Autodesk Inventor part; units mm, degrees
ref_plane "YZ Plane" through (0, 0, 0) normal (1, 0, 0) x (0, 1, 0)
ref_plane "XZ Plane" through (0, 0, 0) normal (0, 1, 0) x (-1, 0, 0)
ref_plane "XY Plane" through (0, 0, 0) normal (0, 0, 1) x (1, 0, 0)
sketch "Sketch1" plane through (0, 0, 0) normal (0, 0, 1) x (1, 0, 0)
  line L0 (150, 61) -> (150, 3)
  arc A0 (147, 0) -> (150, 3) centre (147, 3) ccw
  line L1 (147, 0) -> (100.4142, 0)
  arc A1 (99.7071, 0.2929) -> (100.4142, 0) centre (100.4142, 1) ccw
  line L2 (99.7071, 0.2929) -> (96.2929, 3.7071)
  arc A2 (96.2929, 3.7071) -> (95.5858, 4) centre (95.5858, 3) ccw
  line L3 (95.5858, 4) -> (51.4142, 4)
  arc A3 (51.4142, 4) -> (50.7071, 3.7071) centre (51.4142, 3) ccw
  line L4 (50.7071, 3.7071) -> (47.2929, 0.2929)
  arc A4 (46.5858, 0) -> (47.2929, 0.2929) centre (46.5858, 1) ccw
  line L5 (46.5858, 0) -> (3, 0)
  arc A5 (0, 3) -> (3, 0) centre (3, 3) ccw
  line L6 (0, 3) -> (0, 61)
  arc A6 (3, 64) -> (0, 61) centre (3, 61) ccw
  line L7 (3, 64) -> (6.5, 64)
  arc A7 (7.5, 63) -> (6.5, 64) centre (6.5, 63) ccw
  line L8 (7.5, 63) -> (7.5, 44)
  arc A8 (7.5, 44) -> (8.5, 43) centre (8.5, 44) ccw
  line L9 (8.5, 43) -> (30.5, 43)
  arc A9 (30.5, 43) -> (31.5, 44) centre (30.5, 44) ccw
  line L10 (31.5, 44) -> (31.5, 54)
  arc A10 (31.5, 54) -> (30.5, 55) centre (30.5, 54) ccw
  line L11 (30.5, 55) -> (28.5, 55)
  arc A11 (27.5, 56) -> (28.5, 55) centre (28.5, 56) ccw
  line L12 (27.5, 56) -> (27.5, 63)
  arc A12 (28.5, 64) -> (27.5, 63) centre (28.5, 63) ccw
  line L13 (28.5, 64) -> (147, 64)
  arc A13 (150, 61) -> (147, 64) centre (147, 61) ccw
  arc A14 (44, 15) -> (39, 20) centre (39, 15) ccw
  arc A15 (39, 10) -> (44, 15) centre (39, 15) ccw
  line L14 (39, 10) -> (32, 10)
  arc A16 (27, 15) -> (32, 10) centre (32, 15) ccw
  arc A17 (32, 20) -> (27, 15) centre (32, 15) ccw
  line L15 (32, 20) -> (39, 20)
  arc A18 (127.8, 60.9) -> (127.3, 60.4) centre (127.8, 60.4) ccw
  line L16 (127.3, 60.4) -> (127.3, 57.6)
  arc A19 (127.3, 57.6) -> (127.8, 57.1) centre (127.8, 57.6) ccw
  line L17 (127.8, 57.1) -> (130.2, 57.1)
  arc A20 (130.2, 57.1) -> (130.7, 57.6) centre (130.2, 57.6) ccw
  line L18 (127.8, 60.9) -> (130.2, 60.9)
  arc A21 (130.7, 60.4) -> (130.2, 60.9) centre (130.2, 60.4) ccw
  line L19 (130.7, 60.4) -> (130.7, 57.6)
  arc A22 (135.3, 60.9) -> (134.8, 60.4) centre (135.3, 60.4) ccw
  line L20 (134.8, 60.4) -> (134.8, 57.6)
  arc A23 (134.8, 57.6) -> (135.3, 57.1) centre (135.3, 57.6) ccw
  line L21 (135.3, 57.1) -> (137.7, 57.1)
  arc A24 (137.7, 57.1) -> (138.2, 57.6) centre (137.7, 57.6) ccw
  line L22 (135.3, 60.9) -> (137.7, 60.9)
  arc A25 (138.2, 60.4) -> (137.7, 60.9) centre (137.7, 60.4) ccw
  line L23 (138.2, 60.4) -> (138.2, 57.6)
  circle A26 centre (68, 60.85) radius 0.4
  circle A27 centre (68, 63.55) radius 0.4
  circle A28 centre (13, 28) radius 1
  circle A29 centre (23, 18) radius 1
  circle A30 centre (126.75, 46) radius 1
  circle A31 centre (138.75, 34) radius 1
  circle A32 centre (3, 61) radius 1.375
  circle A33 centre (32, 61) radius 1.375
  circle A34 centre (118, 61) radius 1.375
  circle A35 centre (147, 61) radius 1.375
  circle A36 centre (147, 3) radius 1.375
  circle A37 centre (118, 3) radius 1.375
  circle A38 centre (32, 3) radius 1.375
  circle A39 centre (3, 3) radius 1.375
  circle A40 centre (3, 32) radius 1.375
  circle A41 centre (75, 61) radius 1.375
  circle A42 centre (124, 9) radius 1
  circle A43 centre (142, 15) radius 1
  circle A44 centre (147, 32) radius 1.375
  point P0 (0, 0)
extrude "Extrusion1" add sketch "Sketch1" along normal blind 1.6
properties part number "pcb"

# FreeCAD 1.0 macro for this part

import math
import FreeCAD as App
import Part
import Sketcher
Q = App.Units.Quantity

doc = App.newDocument("Part")
body = doc.addObject("PartDesign::Body", "Body")

# Sketch on XY plane
sketch1 = body.newObject("Sketcher::SketchObject", "Sketch")
sketch1.AttachmentSupport = (doc.getObject("XY_Plane"), [""])
sketch1.MapMode = "FlatFace"
sketch1.addGeometry(Part.LineSegment(App.Vector(150, 3, 0), App.Vector(150, 61, 0)), False)
sketch1.addGeometry(Part.ArcOfCircle(Part.Circle(App.Vector(147, 61, 0), App.Vector(0, 0, 1), 3), math.radians(0), math.radians(90)), False)
sketch1.addGeometry(Part.LineSegment(App.Vector(147, 64, 0), App.Vector(28.5, 64, 0)), False)
sketch1.addGeometry(Part.ArcOfCircle(Part.Circle(App.Vector(28.5, 63, 0), App.Vector(0, 0, 1), 1), math.radians(90), math.radians(180)), False)
sketch1.addGeometry(Part.LineSegment(App.Vector(27.5, 63, 0), App.Vector(27.5, 56, 0)), False)
sketch1.addGeometry(Part.ArcOfCircle(Part.Circle(App.Vector(28.5, 56, 0), App.Vector(0, 0, 1), 1), math.radians(180), math.radians(270)), False)
sketch1.addGeometry(Part.LineSegment(App.Vector(28.5, 55, 0), App.Vector(30.5, 55, 0)), False)
sketch1.addGeometry(Part.ArcOfCircle(Part.Circle(App.Vector(30.5, 54, 0), App.Vector(0, 0, 1), 1), math.radians(0), math.radians(90)), False)
sketch1.addGeometry(Part.LineSegment(App.Vector(31.5, 54, 0), App.Vector(31.5, 44, 0)), False)
sketch1.addGeometry(Part.ArcOfCircle(Part.Circle(App.Vector(30.5, 44, 0), App.Vector(0, 0, 1), 1), math.radians(-90), math.radians(0)), False)
sketch1.addGeometry(Part.LineSegment(App.Vector(30.5, 43, 0), App.Vector(8.5, 43, 0)), False)
sketch1.addGeometry(Part.ArcOfCircle(Part.Circle(App.Vector(8.5, 44, 0), App.Vector(0, 0, 1), 1), math.radians(180), math.radians(270)), False)
sketch1.addGeometry(Part.LineSegment(App.Vector(7.5, 44, 0), App.Vector(7.5, 63, 0)), False)
sketch1.addGeometry(Part.ArcOfCircle(Part.Circle(App.Vector(6.5, 63, 0), App.Vector(0, 0, 1), 1), math.radians(0), math.radians(90)), False)
sketch1.addGeometry(Part.LineSegment(App.Vector(6.5, 64, 0), App.Vector(3, 64, 0)), False)
sketch1.addGeometry(Part.ArcOfCircle(Part.Circle(App.Vector(3, 61, 0), App.Vector(0, 0, 1), 3), math.radians(90), math.radians(180)), False)
sketch1.addGeometry(Part.LineSegment(App.Vector(0, 61, 0), App.Vector(0, 3, 0)), False)
sketch1.addGeometry(Part.ArcOfCircle(Part.Circle(App.Vector(3, 3, 0), App.Vector(0, 0, 1), 3), math.radians(180), math.radians(270)), False)
sketch1.addGeometry(Part.LineSegment(App.Vector(3, 0, 0), App.Vector(46.59, 0, 0)), False)
sketch1.addGeometry(Part.ArcOfCircle(Part.Circle(App.Vector(46.59, 1, 0), App.Vector(0, 0, 1), 1), math.radians(-90), math.radians(-45)), False)
sketch1.addGeometry(Part.LineSegment(App.Vector(47.29, 0.29, 0), App.Vector(50.71, 3.71, 0)), False)
sketch1.addGeometry(Part.ArcOfCircle(Part.Circle(App.Vector(51.41, 3, 0), App.Vector(0, 0, 1), 1), math.radians(90), math.radians(135)), False)
sketch1.addGeometry(Part.LineSegment(App.Vector(51.41, 4, 0), App.Vector(95.59, 4, 0)), False)
sketch1.addGeometry(Part.ArcOfCircle(Part.Circle(App.Vector(95.59, 3, 0), App.Vector(0, 0, 1), 1), math.radians(45), math.radians(90)), False)
sketch1.addGeometry(Part.LineSegment(App.Vector(96.29, 3.71, 0), App.Vector(99.71, 0.29, 0)), False)
sketch1.addGeometry(Part.ArcOfCircle(Part.Circle(App.Vector(100.41, 1, 0), App.Vector(0, 0, 1), 1), math.radians(-135), math.radians(-90)), False)
sketch1.addGeometry(Part.LineSegment(App.Vector(100.41, 0, 0), App.Vector(147, 0, 0)), False)
sketch1.addGeometry(Part.ArcOfCircle(Part.Circle(App.Vector(147, 3, 0), App.Vector(0, 0, 1), 3), math.radians(-90), math.radians(0)), False)
sketch1.addGeometry(Part.Circle(App.Vector(3, 3, 0), App.Vector(0, 0, 1), 1.38), False)
sketch1.addGeometry(Part.Circle(App.Vector(32, 3, 0), App.Vector(0, 0, 1), 1.38), False)
sketch1.addGeometry(Part.ArcOfCircle(Part.Circle(App.Vector(39, 15, 0), App.Vector(0, 0, 1), 5), math.radians(-90), math.radians(90)), False)
sketch1.addGeometry(Part.LineSegment(App.Vector(39, 10, 0), App.Vector(32, 10, 0)), False)
sketch1.addGeometry(Part.ArcOfCircle(Part.Circle(App.Vector(32, 15, 0), App.Vector(0, 0, 1), 5), math.radians(90), math.radians(270)), False)
sketch1.addGeometry(Part.LineSegment(App.Vector(32, 20, 0), App.Vector(39, 20, 0)), False)
sketch1.addGeometry(Part.Circle(App.Vector(23, 18, 0), App.Vector(0, 0, 1), 1), False)
sketch1.addGeometry(Part.Circle(App.Vector(13, 28, 0), App.Vector(0, 0, 1), 1), False)
sketch1.addGeometry(Part.Circle(App.Vector(118, 3, 0), App.Vector(0, 0, 1), 1.38), False)
sketch1.addGeometry(Part.Circle(App.Vector(147, 3, 0), App.Vector(0, 0, 1), 1.38), False)
sketch1.addGeometry(Part.Circle(App.Vector(124, 9, 0), App.Vector(0, 0, 1), 1), False)
sketch1.addGeometry(Part.Circle(App.Vector(142, 15, 0), App.Vector(0, 0, 1), 1), False)
sketch1.addGeometry(Part.Circle(App.Vector(3, 32, 0), App.Vector(0, 0, 1), 1.38), False)
sketch1.addGeometry(Part.Circle(App.Vector(3, 61, 0), App.Vector(0, 0, 1), 1.38), False)
sketch1.addGeometry(Part.Circle(App.Vector(32, 61, 0), App.Vector(0, 0, 1), 1.38), False)
sketch1.addGeometry(Part.Circle(App.Vector(68, 60.85, 0), App.Vector(0, 0, 1), 0.4), False)
sketch1.addGeometry(Part.Circle(App.Vector(68, 63.55, 0), App.Vector(0, 0, 1), 0.4), False)
sketch1.addGeometry(Part.Circle(App.Vector(138.75, 34, 0), App.Vector(0, 0, 1), 1), False)
sketch1.addGeometry(Part.Circle(App.Vector(147, 32, 0), App.Vector(0, 0, 1), 1.38), False)
sketch1.addGeometry(Part.Circle(App.Vector(126.75, 46, 0), App.Vector(0, 0, 1), 1), False)
sketch1.addGeometry(Part.Circle(App.Vector(75, 61, 0), App.Vector(0, 0, 1), 1.38), False)
sketch1.addGeometry(Part.ArcOfCircle(Part.Circle(App.Vector(127.8, 60.4, 0), App.Vector(0, 0, 1), 0.5), math.radians(90), math.radians(180)), False)
sketch1.addGeometry(Part.LineSegment(App.Vector(127.8, 60.9, 0), App.Vector(130.2, 60.9, 0)), False)
sketch1.addGeometry(Part.ArcOfCircle(Part.Circle(App.Vector(130.2, 60.4, 0), App.Vector(0, 0, 1), 0.5), math.radians(0), math.radians(90)), False)
sketch1.addGeometry(Part.LineSegment(App.Vector(130.7, 60.4, 0), App.Vector(130.7, 57.6, 0)), False)
sketch1.addGeometry(Part.ArcOfCircle(Part.Circle(App.Vector(130.2, 57.6, 0), App.Vector(0, 0, 1), 0.5), math.radians(-90), math.radians(0)), False)
sketch1.addGeometry(Part.LineSegment(App.Vector(130.2, 57.1, 0), App.Vector(127.8, 57.1, 0)), False)
sketch1.addGeometry(Part.ArcOfCircle(Part.Circle(App.Vector(127.8, 57.6, 0), App.Vector(0, 0, 1), 0.5), math.radians(180), math.radians(270)), False)
sketch1.addGeometry(Part.LineSegment(App.Vector(127.3, 57.6, 0), App.Vector(127.3, 60.4, 0)), False)
sketch1.addGeometry(Part.Circle(App.Vector(118, 61, 0), App.Vector(0, 0, 1), 1.38), False)
sketch1.addGeometry(Part.ArcOfCircle(Part.Circle(App.Vector(135.3, 60.4, 0), App.Vector(0, 0, 1), 0.5), math.radians(90), math.radians(180)), False)
sketch1.addGeometry(Part.LineSegment(App.Vector(135.3, 60.9, 0), App.Vector(137.7, 60.9, 0)), False)
sketch1.addGeometry(Part.ArcOfCircle(Part.Circle(App.Vector(137.7, 60.4, 0), App.Vector(0, 0, 1), 0.5), math.radians(0), math.radians(90)), False)
sketch1.addGeometry(Part.LineSegment(App.Vector(138.2, 60.4, 0), App.Vector(138.2, 57.6, 0)), False)
sketch1.addGeometry(Part.ArcOfCircle(Part.Circle(App.Vector(137.7, 57.6, 0), App.Vector(0, 0, 1), 0.5), math.radians(-90), math.radians(0)), False)
sketch1.addGeometry(Part.LineSegment(App.Vector(137.7, 57.1, 0), App.Vector(135.3, 57.1, 0)), False)
sketch1.addGeometry(Part.ArcOfCircle(Part.Circle(App.Vector(135.3, 57.6, 0), App.Vector(0, 0, 1), 0.5), math.radians(180), math.radians(270)), False)
sketch1.addGeometry(Part.LineSegment(App.Vector(134.8, 57.6, 0), App.Vector(134.8, 60.4, 0)), False)
sketch1.addGeometry(Part.Circle(App.Vector(147, 61, 0), App.Vector(0, 0, 1), 1.38), False)
sketch1.addConstraint(Sketcher.Constraint("Tangent", 0, 2, 1, 1))
sketch1.addConstraint(Sketcher.Constraint("Tangent", 1, 2, 2, 1))
sketch1.addConstraint(Sketcher.Constraint("Tangent", 2, 2, 3, 1))
sketch1.addConstraint(Sketcher.Constraint("Tangent", 3, 2, 4, 1))
sketch1.addConstraint(Sketcher.Constraint("Tangent", 4, 2, 5, 1))
sketch1.addConstraint(Sketcher.Constraint("Tangent", 5, 2, 6, 1))
sketch1.addConstraint(Sketcher.Constraint("Tangent", 6, 2, 7, 2))
sketch1.addConstraint(Sketcher.Constraint("Tangent", 7, 1, 8, 1))
sketch1.addConstraint(Sketcher.Constraint("Tangent", 8, 2, 9, 2))
sketch1.addConstraint(Sketcher.Constraint("Tangent", 9, 1, 10, 1))
sketch1.addConstraint(Sketcher.Constraint("Tangent", 10, 2, 11, 2))
sketch1.addConstraint(Sketcher.Constraint("Tangent", 11, 1, 12, 1))
sketch1.addConstraint(Sketcher.Constraint("Tangent", 12, 2, 13, 1))
sketch1.addConstraint(Sketcher.Constraint("Tangent", 13, 2, 14, 1))
sketch1.addConstraint(Sketcher.Constraint("Tangent", 14, 2, 15, 1))
sketch1.addConstraint(Sketcher.Constraint("Tangent", 15, 2, 16, 1))
sketch1.addConstraint(Sketcher.Constraint("Tangent", 16, 2, 17, 1))
sketch1.addConstraint(Sketcher.Constraint("Tangent", 17, 2, 18, 1))
sketch1.addConstraint(Sketcher.Constraint("Tangent", 18, 2, 19, 1))
sketch1.addConstraint(Sketcher.Constraint("Tangent", 19, 2, 20, 1))
sketch1.addConstraint(Sketcher.Constraint("Tangent", 20, 2, 21, 2))
sketch1.addConstraint(Sketcher.Constraint("Tangent", 21, 1, 22, 1))
sketch1.addConstraint(Sketcher.Constraint("Tangent", 22, 2, 23, 2))
sketch1.addConstraint(Sketcher.Constraint("Tangent", 23, 1, 24, 1))
sketch1.addConstraint(Sketcher.Constraint("Tangent", 24, 2, 25, 1))
sketch1.addConstraint(Sketcher.Constraint("Tangent", 25, 2, 26, 1))
sketch1.addConstraint(Sketcher.Constraint("Tangent", 26, 2, 27, 1))
sketch1.addConstraint(Sketcher.Constraint("Tangent", 27, 2, 0, 1))
sketch1.addConstraint(Sketcher.Constraint("Tangent", 30, 1, 31, 1))
sketch1.addConstraint(Sketcher.Constraint("Tangent", 31, 2, 32, 2))
sketch1.addConstraint(Sketcher.Constraint("Tangent", 32, 1, 33, 1))
sketch1.addConstraint(Sketcher.Constraint("Tangent", 33, 2, 30, 2))
sketch1.addConstraint(Sketcher.Constraint("Tangent", 49, 1, 50, 1))
sketch1.addConstraint(Sketcher.Constraint("Tangent", 50, 2, 51, 2))
sketch1.addConstraint(Sketcher.Constraint("Tangent", 51, 1, 52, 1))
sketch1.addConstraint(Sketcher.Constraint("Tangent", 52, 2, 53, 2))
sketch1.addConstraint(Sketcher.Constraint("Tangent", 53, 1, 54, 1))
sketch1.addConstraint(Sketcher.Constraint("Tangent", 54, 2, 55, 2))
sketch1.addConstraint(Sketcher.Constraint("Tangent", 55, 1, 56, 1))
sketch1.addConstraint(Sketcher.Constraint("Tangent", 56, 2, 49, 2))
sketch1.addConstraint(Sketcher.Constraint("Tangent", 58, 1, 59, 1))
sketch1.addConstraint(Sketcher.Constraint("Tangent", 59, 2, 60, 2))
sketch1.addConstraint(Sketcher.Constraint("Tangent", 60, 1, 61, 1))
sketch1.addConstraint(Sketcher.Constraint("Tangent", 61, 2, 62, 2))
sketch1.addConstraint(Sketcher.Constraint("Tangent", 62, 1, 63, 1))
sketch1.addConstraint(Sketcher.Constraint("Tangent", 63, 2, 64, 2))
sketch1.addConstraint(Sketcher.Constraint("Tangent", 64, 1, 65, 1))
sketch1.addConstraint(Sketcher.Constraint("Tangent", 65, 2, 58, 2))
sketch1.addConstraint(Sketcher.Constraint("Vertical", 0))
sketch1.addConstraint(Sketcher.Constraint("Horizontal", 2))
sketch1.addConstraint(Sketcher.Constraint("Vertical", 4))
sketch1.addConstraint(Sketcher.Constraint("Horizontal", 6))
sketch1.addConstraint(Sketcher.Constraint("Vertical", 8))
sketch1.addConstraint(Sketcher.Constraint("Horizontal", 10))
sketch1.addConstraint(Sketcher.Constraint("Vertical", 12))
sketch1.addConstraint(Sketcher.Constraint("Horizontal", 14))
sketch1.addConstraint(Sketcher.Constraint("Vertical", 16))
sketch1.addConstraint(Sketcher.Constraint("Horizontal", 18))
sketch1.addConstraint(Sketcher.Constraint("Horizontal", 22))
sketch1.addConstraint(Sketcher.Constraint("Horizontal", 26))
sketch1.addConstraint(Sketcher.Constraint("Horizontal", 31))
sketch1.addConstraint(Sketcher.Constraint("Horizontal", 33))
sketch1.addConstraint(Sketcher.Constraint("Horizontal", 50))
sketch1.addConstraint(Sketcher.Constraint("Vertical", 52))
sketch1.addConstraint(Sketcher.Constraint("Horizontal", 54))
sketch1.addConstraint(Sketcher.Constraint("Vertical", 56))
sketch1.addConstraint(Sketcher.Constraint("Horizontal", 59))
sketch1.addConstraint(Sketcher.Constraint("Vertical", 61))
sketch1.addConstraint(Sketcher.Constraint("Horizontal", 63))
sketch1.addConstraint(Sketcher.Constraint("Vertical", 65))
sketch1.addConstraint(Sketcher.Constraint("Coincident", 28, 3, 17, 3))
sketch1.addConstraint(Sketcher.Constraint("Coincident", 37, 3, 27, 3))
sketch1.addConstraint(Sketcher.Constraint("Coincident", 41, 3, 15, 3))
sketch1.addConstraint(Sketcher.Constraint("Coincident", 66, 3, 1, 3))
sketch1.addConstraint(Sketcher.Constraint("Equal", 3, 5))
sketch1.addConstraint(Sketcher.Constraint("Equal", 5, 7))
sketch1.addConstraint(Sketcher.Constraint("Equal", 7, 9))
sketch1.addConstraint(Sketcher.Constraint("Equal", 9, 11))
sketch1.addConstraint(Sketcher.Constraint("Equal", 11, 13))
sketch1.addConstraint(Sketcher.Constraint("Equal", 1, 15))
sketch1.addConstraint(Sketcher.Constraint("Equal", 15, 17))
sketch1.addConstraint(Sketcher.Constraint("Equal", 13, 19))
sketch1.addConstraint(Sketcher.Constraint("Equal", 19, 21))
sketch1.addConstraint(Sketcher.Constraint("Equal", 21, 23))
sketch1.addConstraint(Sketcher.Constraint("Equal", 23, 25))
sketch1.addConstraint(Sketcher.Constraint("Equal", 17, 27))
sketch1.addConstraint(Sketcher.Constraint("Equal", 28, 29))
sketch1.addConstraint(Sketcher.Constraint("Equal", 25, 34))
sketch1.addConstraint(Sketcher.Constraint("Equal", 34, 35))
sketch1.addConstraint(Sketcher.Constraint("Equal", 29, 36))
sketch1.addConstraint(Sketcher.Constraint("Equal", 36, 37))
sketch1.addConstraint(Sketcher.Constraint("Equal", 35, 38))
sketch1.addConstraint(Sketcher.Constraint("Equal", 38, 39))
sketch1.addConstraint(Sketcher.Constraint("Equal", 37, 40))
sketch1.addConstraint(Sketcher.Constraint("Equal", 40, 41))
sketch1.addConstraint(Sketcher.Constraint("Equal", 41, 42))
sketch1.addConstraint(Sketcher.Constraint("Equal", 43, 44))
sketch1.addConstraint(Sketcher.Constraint("Equal", 39, 45))
sketch1.addConstraint(Sketcher.Constraint("Equal", 42, 46))
sketch1.addConstraint(Sketcher.Constraint("Equal", 45, 47))
sketch1.addConstraint(Sketcher.Constraint("Equal", 46, 48))
sketch1.addConstraint(Sketcher.Constraint("Equal", 49, 51))
sketch1.addConstraint(Sketcher.Constraint("Equal", 51, 53))
sketch1.addConstraint(Sketcher.Constraint("Equal", 53, 55))
sketch1.addConstraint(Sketcher.Constraint("Equal", 48, 57))
sketch1.addConstraint(Sketcher.Constraint("Equal", 55, 58))
sketch1.addConstraint(Sketcher.Constraint("Equal", 58, 60))
sketch1.addConstraint(Sketcher.Constraint("Equal", 60, 62))
sketch1.addConstraint(Sketcher.Constraint("Equal", 62, 64))
sketch1.addConstraint(Sketcher.Constraint("Equal", 57, 66))
sketch1.addConstraint(Sketcher.Constraint("PointOnObject", 15, 2, -2))
sketch1.addConstraint(Sketcher.Constraint("PointOnObject", 17, 2, -1))
sketch1.addConstraint(Sketcher.Constraint("PointOnObject", 25, 2, -1))
sketch1.addConstraint(Sketcher.Constraint("Perpendicular", 20, 24))
sketch1.addConstraint(Sketcher.Constraint("Horizontal", 3, 3, 13, 3))
sketch1.addConstraint(Sketcher.Constraint("Horizontal", 17, 3, 21, 3))
sketch1.addConstraint(Sketcher.Constraint("Horizontal", 28, 3, 29, 3))
sketch1.addConstraint(Sketcher.Constraint("Horizontal", 29, 3, 36, 3))
sketch1.addConstraint(Sketcher.Constraint("Horizontal", 32, 3, 39, 3))
sketch1.addConstraint(Sketcher.Constraint("Horizontal", 41, 3, 42, 3))
sketch1.addConstraint(Sketcher.Constraint("Horizontal", 40, 3, 46, 3))
sketch1.addConstraint(Sketcher.Constraint("Horizontal", 42, 3, 48, 3))
sketch1.addConstraint(Sketcher.Constraint("Horizontal", 48, 3, 57, 3))
sketch1.addConstraint(Sketcher.Constraint("Horizontal", 51, 3, 58, 3))
sketch1.addConstraint(Sketcher.Constraint("Horizontal", 55, 3, 62, 3))
sketch1.addConstraint(Sketcher.Constraint("Horizontal", 20, 2, 23, 1))
sketch1.addConstraint(Sketcher.Constraint("Vertical", 29, 3, 32, 3))
sketch1.addConstraint(Sketcher.Constraint("Vertical", 28, 3, 40, 3))
sketch1.addConstraint(Sketcher.Constraint("Vertical", 32, 3, 42, 3))
sketch1.addConstraint(Sketcher.Constraint("Vertical", 43, 3, 44, 3))
sketch1.addConstraint(Sketcher.Constraint("Vertical", 37, 3, 46, 3))
sketch1.addConstraint(Sketcher.Constraint("Vertical", 36, 3, 57, 3))
sketch1.addConstraint(Sketcher.Constraint("Equal", 54, 59))
sketch1.addConstraint(Sketcher.Constraint("Equal", 33, 4))
sketch1.addConstraint(Sketcher.Constraint("Diameter", 34, Q("2 mm")))
sketch1.addConstraint(Sketcher.Constraint("Radius", 1, Q("3 mm")))
sketch1.addConstraint(Sketcher.Constraint("Radius", 30, Q("5 mm")))
sketch1.addConstraint(Sketcher.Constraint("Diameter", 43, Q("0.8 mm")))
sketch1.addConstraint(Sketcher.Constraint("Radius", 49, Q("0.5 mm")))
sketch1.addConstraint(Sketcher.Constraint("Diameter", 28, Q("2.75 mm")))
sketch1.addConstraint(Sketcher.Constraint("DistanceX", 6, 1, 6, 2, Q("2 mm")))
sketch1.addConstraint(Sketcher.Constraint("DistanceX", 10, 2, 10, 1, Q("22 mm")))
sketch1.addConstraint(Sketcher.Constraint("DistanceX", 31, 2, 31, 1, Q("7 mm")))
sketch1.addConstraint(Sketcher.Constraint("DistanceY", 0, 1, 0, 2, Q("58 mm")))
sketch1.addConstraint(Sketcher.Constraint("DistanceY", 8, 2, 8, 1, Q("10 mm")))
sketch1.addConstraint(Sketcher.Constraint("DistanceX", 2, 2, 2, 1, Q("118.5 mm")))
sketch1.addConstraint(Sketcher.Constraint("DistanceX", 14, 2, 14, 1, Q("3.5 mm")))
sketch1.addConstraint(Sketcher.Constraint("DistanceX", 50, 1, 50, 2, Q("2.4 mm")))
sketch1.addConstraint(Sketcher.Constraint("DistanceY", 52, 2, 52, 1, Q("2.8 mm")))
sketch1.addConstraint(Sketcher.Constraint("DistanceX", -1, 1, 29, 3, Q("32 mm")))
sketch1.addConstraint(Sketcher.Constraint("DistanceY", -1, 1, 30, 3, Q("15 mm")))
sketch1.addConstraint(Sketcher.Constraint("DistanceX", -1, 1, 34, 3, Q("23 mm")))
sketch1.addConstraint(Sketcher.Constraint("DistanceY", -1, 1, 34, 3, Q("18 mm")))
sketch1.addConstraint(Sketcher.Constraint("DistanceX", -1, 1, 35, 3, Q("13 mm")))
sketch1.addConstraint(Sketcher.Constraint("DistanceY", -1, 1, 35, 3, Q("28 mm")))
sketch1.addConstraint(Sketcher.Constraint("DistanceX", -1, 1, 36, 3, Q("118 mm")))
sketch1.addConstraint(Sketcher.Constraint("DistanceX", -1, 1, 38, 3, Q("124 mm")))
sketch1.addConstraint(Sketcher.Constraint("DistanceY", -1, 1, 38, 3, Q("9 mm")))
sketch1.addConstraint(Sketcher.Constraint("DistanceX", -1, 1, 39, 3, Q("142 mm")))
sketch1.addConstraint(Sketcher.Constraint("DistanceY", -1, 1, 40, 3, Q("32 mm")))
sketch1.addConstraint(Sketcher.Constraint("DistanceX", -1, 1, 43, 3, Q("68 mm")))
sketch1.addConstraint(Sketcher.Constraint("DistanceY", -1, 1, 45, 3, Q("34 mm")))
sketch1.addConstraint(Sketcher.Constraint("DistanceY", -1, 1, 47, 3, Q("46 mm")))
sketch1.addConstraint(Sketcher.Constraint("DistanceX", -1, 1, 48, 3, Q("75 mm")))
sketch1.addConstraint(Sketcher.Constraint("DistanceX", -1, 1, 49, 3, Q("127.8 mm")))
sketch1.addConstraint(Sketcher.Constraint("DistanceY", -1, 1, 49, 3, Q("60.4 mm")))
sketch1.addConstraint(Sketcher.Constraint("DistanceX", -1, 1, 58, 3, Q("135.3 mm")))
sketch1.addConstraint(Sketcher.Constraint("DistanceY", -1, 1, 43, 3, Q("60.85 mm")))
sketch1.addConstraint(Sketcher.Constraint("DistanceY", -1, 1, 44, 3, Q("63.55 mm")))
sketch1.addConstraint(Sketcher.Constraint("DistanceX", -1, 1, 45, 3, Q("138.75 mm")))
sketch1.addConstraint(Sketcher.Constraint("DistanceX", -1, 1, 47, 3, Q("126.75 mm")))
sketch1.addConstraint(Sketcher.Constraint("DistanceX", 18, 1, 18, 2, Q("43.5858 mm")))
sketch1.addConstraint(Sketcher.Constraint("DistanceX", 22, 1, 22, 2, Q("44.1716 mm")))
pad1 = body.newObject("PartDesign::Pad", "Pad")
pad1.Profile = sketch1
pad1.Length = 1.6

doc.recompute()
